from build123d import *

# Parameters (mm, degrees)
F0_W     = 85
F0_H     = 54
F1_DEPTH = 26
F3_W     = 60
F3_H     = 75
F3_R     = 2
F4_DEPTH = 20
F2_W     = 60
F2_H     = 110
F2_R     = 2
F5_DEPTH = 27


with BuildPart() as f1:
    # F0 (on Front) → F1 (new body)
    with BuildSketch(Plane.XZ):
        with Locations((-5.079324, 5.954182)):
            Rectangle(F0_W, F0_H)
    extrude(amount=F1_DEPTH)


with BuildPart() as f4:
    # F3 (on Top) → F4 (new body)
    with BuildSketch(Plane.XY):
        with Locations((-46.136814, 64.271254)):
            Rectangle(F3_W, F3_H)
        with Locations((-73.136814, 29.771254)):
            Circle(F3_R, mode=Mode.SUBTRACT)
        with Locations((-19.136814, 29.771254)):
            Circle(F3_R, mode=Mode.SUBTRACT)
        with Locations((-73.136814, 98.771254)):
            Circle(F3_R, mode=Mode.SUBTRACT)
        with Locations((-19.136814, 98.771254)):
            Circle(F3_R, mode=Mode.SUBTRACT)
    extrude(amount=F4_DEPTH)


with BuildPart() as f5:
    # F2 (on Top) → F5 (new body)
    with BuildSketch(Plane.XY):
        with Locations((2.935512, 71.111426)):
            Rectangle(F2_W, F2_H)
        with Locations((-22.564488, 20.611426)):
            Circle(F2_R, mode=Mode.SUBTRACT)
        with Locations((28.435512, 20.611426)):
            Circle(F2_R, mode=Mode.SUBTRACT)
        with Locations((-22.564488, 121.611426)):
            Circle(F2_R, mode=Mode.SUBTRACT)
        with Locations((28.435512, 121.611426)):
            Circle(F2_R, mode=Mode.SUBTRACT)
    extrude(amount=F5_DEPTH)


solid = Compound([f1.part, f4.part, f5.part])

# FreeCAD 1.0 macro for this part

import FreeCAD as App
import Part
import Sketcher

doc = App.newDocument("Part")
params = doc.addObject("Spreadsheet::Sheet", "Params")
for row, (alias, value) in enumerate([
    ("sketch1_width", "85 mm"),
    ("sketch1_height", "54 mm"),
    ("pad1_length", "26 mm"),
    ("sketch2_diameter", "4 mm"),
    ("sketch2_width", "60 mm"),
    ("sketch2_height", "75 mm"),
    ("pad2_length", "20 mm"),
    ("sketch3_diameter", "4 mm"),
    ("sketch3_width", "60 mm"),
    ("sketch3_height", "110 mm"),
    ("pad3_length", "27 mm"),
], start=1):
    params.set(f"A{row}", alias)
    params.set(f"B{row}", "=" + value)
    params.setAlias(f"B{row}", alias)

body = doc.addObject("PartDesign::Body", "Body")

# Sketch on XZ plane
sketch1 = doc.addObject("Sketcher::SketchObject", "Sketch")
body.addObject(sketch1)
sketch1.AttachmentSupport = (doc.XZ_Plane, [""])
sketch1.MapMode = "FlatFace"
sketch1.addGeometry([
    Part.LineSegment(App.Vector(-48, 33, 0), App.Vector(-48, -21, 0)),
    Part.LineSegment(App.Vector(-48, -21, 0), App.Vector(37, -21, 0)),
    Part.LineSegment(App.Vector(37, -21, 0), App.Vector(37, 33, 0)),
    Part.LineSegment(App.Vector(37, 33, 0), App.Vector(-48, 33, 0)),
], False)
sketch1.addConstraint([
    Sketcher.Constraint("Coincident", 0, 2, 1, 1),
    Sketcher.Constraint("Coincident", 1, 2, 2, 1),
    Sketcher.Constraint("Coincident", 2, 2, 3, 1),
    Sketcher.Constraint("Coincident", 3, 2, 0, 1),
    Sketcher.Constraint("Vertical", 0),
    Sketcher.Constraint("Horizontal", 1),
    Sketcher.Constraint("Vertical", 2),
    Sketcher.Constraint("Horizontal", 3),
    Sketcher.Constraint("DistanceX", 1, 1, 1, 2, 85.0),
    Sketcher.Constraint("DistanceY", 0, 2, 0, 1, 54.0),
    Sketcher.Constraint("DistanceY", 0, 2, -1, 1, 21.045818),
    Sketcher.Constraint("DistanceX", 0, 2, -1, 1, 47.579324),
])
sketch1.setExpression("Constraints[8]", "Params.sketch1_width")
sketch1.setExpression("Constraints[9]", "Params.sketch1_height")
pad1 = doc.addObject("PartDesign::Pad", "Pad")
body.addObject(pad1)
pad1.Profile = sketch1
pad1.setExpression("Length", "Params.pad1_length")
body2 = doc.addObject("PartDesign::Body", "Body001")

# Sketch on XY plane
sketch2 = doc.addObject("Sketcher::SketchObject", "Sketch001")
body2.addObject(sketch2)
sketch2.AttachmentSupport = (doc.getObject("XY_Plane001"), [""])
sketch2.MapMode = "FlatFace"
sketch2.addGeometry([
    Part.LineSegment(App.Vector(-76.1, 101.8, 0), App.Vector(-76.1, 26.8, 0)),  # 0
    Part.LineSegment(App.Vector(-76.1, 26.8, 0), App.Vector(-16.1, 26.8, 0)),  # 1
    Part.LineSegment(App.Vector(-16.1, 26.8, 0), App.Vector(-16.1, 101.8, 0)),  # 2
    Part.LineSegment(App.Vector(-16.1, 101.8, 0), App.Vector(-76.1, 101.8, 0)),  # 3
    Part.Circle(App.Vector(-73.1, 29.8, 0), App.Vector(0, 0, 1), 2),  # 4
    Part.Circle(App.Vector(-19.1, 29.8, 0), App.Vector(0, 0, 1), 2),  # 5
    Part.Circle(App.Vector(-73.1, 98.8, 0), App.Vector(0, 0, 1), 2),  # 6
    Part.Circle(App.Vector(-19.1, 98.8, 0), App.Vector(0, 0, 1), 2),  # 7
], False)
sketch2.addConstraint([
    Sketcher.Constraint("Coincident", 0, 2, 1, 1),
    Sketcher.Constraint("Coincident", 1, 2, 2, 1),
    Sketcher.Constraint("Coincident", 2, 2, 3, 1),
    Sketcher.Constraint("Coincident", 3, 2, 0, 1),
    Sketcher.Constraint("Vertical", 0),
    Sketcher.Constraint("Horizontal", 1),
    Sketcher.Constraint("Vertical", 2),
    Sketcher.Constraint("Horizontal", 3),
    Sketcher.Constraint("Equal", 4, 5),
    Sketcher.Constraint("Equal", 5, 6),
    Sketcher.Constraint("Equal", 6, 7),
    Sketcher.Constraint("Horizontal", 4, 3, 5, 3),
    Sketcher.Constraint("Horizontal", 6, 3, 7, 3),
    Sketcher.Constraint("Vertical", 4, 3, 6, 3),
    Sketcher.Constraint("Vertical", 5, 3, 7, 3),
    Sketcher.Constraint("Diameter", 4, 4.0),
    Sketcher.Constraint("DistanceX", 1, 1, 1, 2, 60.0),
    Sketcher.Constraint("DistanceY", 0, 2, 0, 1, 75.0),
    Sketcher.Constraint("DistanceX", 4, 3, 5, 3, 54.0),
    Sketcher.Constraint("DistanceY", 4, 3, 6, 3, 69.0),
    Sketcher.Constraint("DistanceX", 0, 2, 4, 3, 3.0),
    Sketcher.Constraint("DistanceY", 0, 2, 4, 3, 3.0),
    Sketcher.Constraint("DistanceX", 4, 3, -1, 1, 73.136814),
    Sketcher.Constraint("DistanceY", -1, 1, 4, 3, 29.771254),
])
sketch2.setExpression("Constraints[15]", "Params.sketch2_diameter")
sketch2.setExpression("Constraints[16]", "Params.sketch2_width")
sketch2.setExpression("Constraints[17]", "Params.sketch2_height")
pad2 = doc.addObject("PartDesign::Pad", "Pad001")
body2.addObject(pad2)
pad2.Profile = sketch2
pad2.setExpression("Length", "Params.pad2_length")
body3 = doc.addObject("PartDesign::Body", "Body002")

# Sketch on XY plane
sketch3 = doc.addObject("Sketcher::SketchObject", "Sketch002")
body3.addObject(sketch3)
sketch3.AttachmentSupport = (doc.getObject("XY_Plane002"), [""])
sketch3.MapMode = "FlatFace"
sketch3.addGeometry([
    Part.LineSegment(App.Vector(-27.1, 126.1, 0), App.Vector(-27.1, 16.1, 0)),  # 0
    Part.LineSegment(App.Vector(-27.1, 16.1, 0), App.Vector(32.9, 16.1, 0)),  # 1
    Part.LineSegment(App.Vector(32.9, 16.1, 0), App.Vector(32.9, 126.1, 0)),  # 2
    Part.LineSegment(App.Vector(32.9, 126.1, 0), App.Vector(-27.1, 126.1, 0)),  # 3
    Part.Circle(App.Vector(-22.6, 20.6, 0), App.Vector(0, 0, 1), 2),  # 4
    Part.Circle(App.Vector(28.4, 20.6, 0), App.Vector(0, 0, 1), 2),  # 5
    Part.Circle(App.Vector(-22.6, 121.6, 0), App.Vector(0, 0, 1), 2),  # 6
    Part.Circle(App.Vector(28.4, 121.6, 0), App.Vector(0, 0, 1), 2),  # 7
], False)
sketch3.addConstraint([
    Sketcher.Constraint("Coincident", 0, 2, 1, 1),
    Sketcher.Constraint("Coincident", 1, 2, 2, 1),
    Sketcher.Constraint("Coincident", 2, 2, 3, 1),
    Sketcher.Constraint("Coincident", 3, 2, 0, 1),
    Sketcher.Constraint("Vertical", 0),
    Sketcher.Constraint("Horizontal", 1),
    Sketcher.Constraint("Vertical", 2),
    Sketcher.Constraint("Horizontal", 3),
    Sketcher.Constraint("Equal", 4, 5),
    Sketcher.Constraint("Equal", 5, 6),
    Sketcher.Constraint("Equal", 6, 7),
    Sketcher.Constraint("Horizontal", 4, 3, 5, 3),
    Sketcher.Constraint("Horizontal", 6, 3, 7, 3),
    Sketcher.Constraint("Vertical", 4, 3, 6, 3),
    Sketcher.Constraint("Vertical", 5, 3, 7, 3),
    Sketcher.Constraint("Diameter", 4, 4.0),
    Sketcher.Constraint("DistanceX", 1, 1, 1, 2, 60.0),
    Sketcher.Constraint("DistanceY", 0, 2, 0, 1, 110.0),
    Sketcher.Constraint("DistanceX", 4, 3, 5, 3, 51.0),
    Sketcher.Constraint("DistanceY", 4, 3, 6, 3, 101.0),
    Sketcher.Constraint("DistanceX", 0, 2, 4, 3, 4.5),
    Sketcher.Constraint("DistanceY", 0, 2, 4, 3, 4.5),
    Sketcher.Constraint("DistanceX", 4, 3, -1, 1, 22.564488),
    Sketcher.Constraint("DistanceY", -1, 1, 4, 3, 20.611426),
])
sketch3.setExpression("Constraints[15]", "Params.sketch3_diameter")
sketch3.setExpression("Constraints[16]", "Params.sketch3_width")
sketch3.setExpression("Constraints[17]", "Params.sketch3_height")
pad3 = doc.addObject("PartDesign::Pad", "Pad002")
body3.addObject(pad3)
pad3.Profile = sketch3
pad3.setExpression("Length", "Params.pad3_length")

doc.recompute()
